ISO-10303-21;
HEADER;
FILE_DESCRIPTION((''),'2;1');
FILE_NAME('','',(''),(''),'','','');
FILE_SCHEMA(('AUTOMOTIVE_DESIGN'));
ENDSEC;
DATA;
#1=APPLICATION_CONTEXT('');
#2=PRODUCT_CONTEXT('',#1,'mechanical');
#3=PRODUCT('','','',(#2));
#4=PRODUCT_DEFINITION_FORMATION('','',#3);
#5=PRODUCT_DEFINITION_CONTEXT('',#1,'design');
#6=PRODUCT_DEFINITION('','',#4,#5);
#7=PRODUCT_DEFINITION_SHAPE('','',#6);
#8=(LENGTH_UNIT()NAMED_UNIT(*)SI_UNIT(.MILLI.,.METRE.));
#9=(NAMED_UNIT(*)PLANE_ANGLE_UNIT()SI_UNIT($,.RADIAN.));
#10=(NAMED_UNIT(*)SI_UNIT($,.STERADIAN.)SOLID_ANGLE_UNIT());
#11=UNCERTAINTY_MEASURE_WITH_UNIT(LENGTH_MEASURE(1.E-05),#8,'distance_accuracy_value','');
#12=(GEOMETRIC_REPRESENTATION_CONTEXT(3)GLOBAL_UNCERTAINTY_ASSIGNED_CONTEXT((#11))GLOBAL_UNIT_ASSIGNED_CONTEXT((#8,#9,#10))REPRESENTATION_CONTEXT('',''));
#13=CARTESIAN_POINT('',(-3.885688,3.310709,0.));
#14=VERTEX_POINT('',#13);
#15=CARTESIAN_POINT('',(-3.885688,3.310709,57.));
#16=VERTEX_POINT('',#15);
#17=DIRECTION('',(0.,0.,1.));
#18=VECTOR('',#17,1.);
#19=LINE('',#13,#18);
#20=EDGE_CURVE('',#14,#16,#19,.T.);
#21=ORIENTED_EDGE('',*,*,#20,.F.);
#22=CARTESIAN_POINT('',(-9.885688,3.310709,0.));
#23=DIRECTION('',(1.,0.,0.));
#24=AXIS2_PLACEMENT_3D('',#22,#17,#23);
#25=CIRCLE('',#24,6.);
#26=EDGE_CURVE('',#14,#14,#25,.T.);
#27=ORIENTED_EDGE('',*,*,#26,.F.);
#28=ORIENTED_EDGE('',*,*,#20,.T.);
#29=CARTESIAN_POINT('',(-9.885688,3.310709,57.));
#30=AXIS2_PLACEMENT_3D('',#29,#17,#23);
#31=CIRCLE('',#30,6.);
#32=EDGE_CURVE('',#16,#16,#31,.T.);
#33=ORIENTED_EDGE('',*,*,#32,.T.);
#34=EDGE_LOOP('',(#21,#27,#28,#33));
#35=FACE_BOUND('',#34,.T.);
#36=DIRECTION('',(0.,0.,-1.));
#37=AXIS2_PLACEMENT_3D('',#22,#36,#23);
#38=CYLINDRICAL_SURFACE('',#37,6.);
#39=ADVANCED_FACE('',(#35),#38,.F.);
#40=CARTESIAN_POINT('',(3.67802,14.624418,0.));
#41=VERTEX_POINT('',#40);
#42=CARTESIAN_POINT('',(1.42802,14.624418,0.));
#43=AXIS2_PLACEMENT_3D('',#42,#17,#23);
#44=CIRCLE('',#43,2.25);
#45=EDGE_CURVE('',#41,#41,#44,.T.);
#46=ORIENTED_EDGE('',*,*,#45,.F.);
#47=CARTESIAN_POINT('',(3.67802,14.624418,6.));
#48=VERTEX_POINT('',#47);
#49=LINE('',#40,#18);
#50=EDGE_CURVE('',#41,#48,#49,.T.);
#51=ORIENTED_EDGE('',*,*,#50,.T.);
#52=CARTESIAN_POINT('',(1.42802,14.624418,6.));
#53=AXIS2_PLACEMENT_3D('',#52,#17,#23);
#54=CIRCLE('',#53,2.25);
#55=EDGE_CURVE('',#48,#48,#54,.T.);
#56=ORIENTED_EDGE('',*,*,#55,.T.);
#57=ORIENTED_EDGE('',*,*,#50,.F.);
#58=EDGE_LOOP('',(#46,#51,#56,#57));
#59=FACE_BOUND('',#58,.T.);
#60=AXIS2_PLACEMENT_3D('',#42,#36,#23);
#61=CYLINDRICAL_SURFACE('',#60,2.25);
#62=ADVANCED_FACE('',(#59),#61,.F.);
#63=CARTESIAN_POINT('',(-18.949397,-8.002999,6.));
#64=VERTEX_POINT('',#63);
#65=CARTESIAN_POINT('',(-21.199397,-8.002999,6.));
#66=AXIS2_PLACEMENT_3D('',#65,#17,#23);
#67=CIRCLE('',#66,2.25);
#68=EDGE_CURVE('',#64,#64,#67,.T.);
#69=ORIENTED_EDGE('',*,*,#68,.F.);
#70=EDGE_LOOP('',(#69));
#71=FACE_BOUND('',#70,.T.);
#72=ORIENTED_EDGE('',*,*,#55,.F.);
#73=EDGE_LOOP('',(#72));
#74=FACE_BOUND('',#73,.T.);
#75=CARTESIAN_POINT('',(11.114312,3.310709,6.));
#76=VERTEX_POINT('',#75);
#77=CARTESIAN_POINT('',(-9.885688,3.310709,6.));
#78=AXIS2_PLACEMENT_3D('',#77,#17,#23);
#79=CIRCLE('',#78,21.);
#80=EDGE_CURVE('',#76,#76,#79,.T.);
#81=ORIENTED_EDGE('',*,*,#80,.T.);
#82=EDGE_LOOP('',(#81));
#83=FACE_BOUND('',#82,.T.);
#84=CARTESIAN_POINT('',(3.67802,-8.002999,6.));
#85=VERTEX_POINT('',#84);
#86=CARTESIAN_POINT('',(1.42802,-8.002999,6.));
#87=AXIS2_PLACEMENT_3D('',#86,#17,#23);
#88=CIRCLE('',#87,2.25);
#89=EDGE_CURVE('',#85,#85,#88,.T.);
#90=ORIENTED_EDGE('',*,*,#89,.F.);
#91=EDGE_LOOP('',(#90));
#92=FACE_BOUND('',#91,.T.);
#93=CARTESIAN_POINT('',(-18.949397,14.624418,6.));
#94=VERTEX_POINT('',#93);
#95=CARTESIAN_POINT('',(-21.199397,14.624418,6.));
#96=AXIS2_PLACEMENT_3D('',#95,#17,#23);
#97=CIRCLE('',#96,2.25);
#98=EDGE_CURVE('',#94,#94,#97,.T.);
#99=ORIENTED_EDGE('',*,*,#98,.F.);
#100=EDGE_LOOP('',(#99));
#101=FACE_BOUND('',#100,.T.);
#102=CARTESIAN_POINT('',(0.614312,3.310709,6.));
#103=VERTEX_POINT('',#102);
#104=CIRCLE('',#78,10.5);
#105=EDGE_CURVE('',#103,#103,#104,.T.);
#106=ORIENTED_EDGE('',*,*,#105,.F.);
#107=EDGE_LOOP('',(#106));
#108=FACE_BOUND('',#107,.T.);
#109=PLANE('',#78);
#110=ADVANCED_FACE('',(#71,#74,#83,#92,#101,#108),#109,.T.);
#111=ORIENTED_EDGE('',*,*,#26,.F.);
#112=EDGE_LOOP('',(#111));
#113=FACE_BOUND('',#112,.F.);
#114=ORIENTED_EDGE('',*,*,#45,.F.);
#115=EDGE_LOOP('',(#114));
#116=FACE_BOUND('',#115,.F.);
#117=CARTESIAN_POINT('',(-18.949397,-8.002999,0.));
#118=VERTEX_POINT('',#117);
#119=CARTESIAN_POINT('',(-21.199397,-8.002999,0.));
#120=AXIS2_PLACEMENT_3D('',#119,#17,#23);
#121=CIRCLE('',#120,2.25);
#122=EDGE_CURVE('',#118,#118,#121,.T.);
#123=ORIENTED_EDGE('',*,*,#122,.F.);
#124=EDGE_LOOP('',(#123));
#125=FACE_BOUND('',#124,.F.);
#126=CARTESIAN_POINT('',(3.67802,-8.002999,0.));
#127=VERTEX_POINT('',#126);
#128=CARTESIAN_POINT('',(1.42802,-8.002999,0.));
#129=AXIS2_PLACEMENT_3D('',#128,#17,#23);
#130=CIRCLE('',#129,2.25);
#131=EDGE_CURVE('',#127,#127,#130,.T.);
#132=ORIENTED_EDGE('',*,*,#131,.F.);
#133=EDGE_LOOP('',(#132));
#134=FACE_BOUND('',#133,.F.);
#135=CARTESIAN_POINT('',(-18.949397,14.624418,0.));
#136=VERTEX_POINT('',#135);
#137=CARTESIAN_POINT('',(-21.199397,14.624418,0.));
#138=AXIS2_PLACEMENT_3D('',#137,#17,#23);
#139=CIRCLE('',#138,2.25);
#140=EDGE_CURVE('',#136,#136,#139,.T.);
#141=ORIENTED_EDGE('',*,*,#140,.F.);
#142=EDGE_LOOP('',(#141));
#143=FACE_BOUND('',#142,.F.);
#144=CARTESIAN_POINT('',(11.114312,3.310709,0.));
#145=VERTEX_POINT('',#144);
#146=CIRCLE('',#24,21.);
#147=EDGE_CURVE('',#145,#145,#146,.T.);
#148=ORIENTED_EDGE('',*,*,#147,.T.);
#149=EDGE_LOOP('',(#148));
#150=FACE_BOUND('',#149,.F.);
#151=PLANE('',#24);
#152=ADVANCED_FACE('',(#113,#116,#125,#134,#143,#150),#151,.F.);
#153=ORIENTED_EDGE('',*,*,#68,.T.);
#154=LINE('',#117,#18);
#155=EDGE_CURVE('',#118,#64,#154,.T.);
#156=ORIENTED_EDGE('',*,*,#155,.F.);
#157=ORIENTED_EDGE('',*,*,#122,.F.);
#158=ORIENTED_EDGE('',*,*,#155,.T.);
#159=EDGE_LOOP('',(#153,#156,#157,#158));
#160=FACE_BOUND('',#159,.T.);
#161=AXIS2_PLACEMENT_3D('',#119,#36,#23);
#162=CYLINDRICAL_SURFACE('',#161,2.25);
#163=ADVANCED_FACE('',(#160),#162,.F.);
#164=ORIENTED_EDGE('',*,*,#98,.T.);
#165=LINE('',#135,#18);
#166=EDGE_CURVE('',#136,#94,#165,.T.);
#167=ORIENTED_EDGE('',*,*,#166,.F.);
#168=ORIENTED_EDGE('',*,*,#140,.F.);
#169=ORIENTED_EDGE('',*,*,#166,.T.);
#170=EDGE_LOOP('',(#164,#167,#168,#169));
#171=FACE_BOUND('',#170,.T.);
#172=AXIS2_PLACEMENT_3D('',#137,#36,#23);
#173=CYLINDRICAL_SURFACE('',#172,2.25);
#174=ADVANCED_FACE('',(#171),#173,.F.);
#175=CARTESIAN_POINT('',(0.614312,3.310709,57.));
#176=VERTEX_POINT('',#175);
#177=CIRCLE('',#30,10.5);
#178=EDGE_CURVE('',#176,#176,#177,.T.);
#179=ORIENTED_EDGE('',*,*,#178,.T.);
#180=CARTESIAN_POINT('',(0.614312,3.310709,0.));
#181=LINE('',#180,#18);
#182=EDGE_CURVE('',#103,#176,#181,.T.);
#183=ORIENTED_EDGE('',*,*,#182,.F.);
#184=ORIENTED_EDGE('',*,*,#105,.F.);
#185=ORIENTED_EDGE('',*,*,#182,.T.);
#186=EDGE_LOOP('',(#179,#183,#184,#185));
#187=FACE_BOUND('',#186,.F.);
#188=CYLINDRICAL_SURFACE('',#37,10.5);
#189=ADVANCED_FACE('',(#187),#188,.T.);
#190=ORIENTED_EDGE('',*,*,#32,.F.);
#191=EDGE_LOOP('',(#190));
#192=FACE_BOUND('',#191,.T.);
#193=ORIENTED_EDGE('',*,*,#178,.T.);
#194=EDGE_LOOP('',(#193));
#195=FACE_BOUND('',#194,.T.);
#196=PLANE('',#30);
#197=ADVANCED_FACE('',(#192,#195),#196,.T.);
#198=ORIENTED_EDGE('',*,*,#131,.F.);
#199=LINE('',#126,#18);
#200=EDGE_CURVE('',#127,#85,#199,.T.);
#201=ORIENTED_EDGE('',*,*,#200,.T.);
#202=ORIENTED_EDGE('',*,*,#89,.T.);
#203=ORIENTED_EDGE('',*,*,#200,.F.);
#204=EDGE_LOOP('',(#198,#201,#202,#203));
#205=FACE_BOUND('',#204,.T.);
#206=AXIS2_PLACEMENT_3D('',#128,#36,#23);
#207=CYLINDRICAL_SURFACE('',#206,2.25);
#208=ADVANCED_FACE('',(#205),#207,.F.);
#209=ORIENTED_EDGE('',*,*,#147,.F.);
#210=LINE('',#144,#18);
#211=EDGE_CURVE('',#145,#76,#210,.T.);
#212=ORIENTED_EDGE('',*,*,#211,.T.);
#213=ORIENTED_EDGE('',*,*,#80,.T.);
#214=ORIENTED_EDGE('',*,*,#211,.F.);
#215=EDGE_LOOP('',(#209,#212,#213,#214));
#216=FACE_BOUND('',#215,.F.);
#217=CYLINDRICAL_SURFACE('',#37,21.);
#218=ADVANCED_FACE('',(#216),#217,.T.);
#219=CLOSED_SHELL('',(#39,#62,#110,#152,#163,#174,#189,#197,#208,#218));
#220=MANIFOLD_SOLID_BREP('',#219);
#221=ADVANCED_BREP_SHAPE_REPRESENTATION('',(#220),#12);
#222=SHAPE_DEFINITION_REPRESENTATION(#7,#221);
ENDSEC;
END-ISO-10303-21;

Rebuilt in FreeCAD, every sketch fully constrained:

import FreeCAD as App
import Part
import Sketcher

V = App.Vector

doc = App.newDocument("Part")
params = doc.addObject("Spreadsheet::Sheet", "Params")
for row, (alias, value) in enumerate([
    ("sketch1_diameter", "21 mm"),
    ("sketch1_diameter2", "12 mm"),
    ("pad1_length", "57 mm"),
    ("sketch2_diameter", "42 mm"),
    ("sketch2_diameter2", "21 mm"),
    ("sketch2_diameter3", "4.5 mm"),
    ("pad2_length", "6 mm"),
], start=1):
    params.set(f"A{row}", alias)
    params.set(f"B{row}", "=" + value)
    params.setAlias(f"B{row}", alias)

body = doc.addObject("PartDesign::Body", "Body")

# Sketch on XY plane
sketch1 = body.newObject("Sketcher::SketchObject", "Sketch")
sketch1.AttachmentSupport = (doc.getObject("XY_Plane"), [""])
sketch1.MapMode = "FlatFace"
sketch1.addGeometry([
    Part.Circle(V(-10, 3, 0), V(0, 0, 1), 10),
    Part.Circle(V(-10, 3, 0), V(0, 0, 1), 6),
], False)
sketch1.addConstraint([
    Sketcher.Constraint("Coincident", 1, 3, 0, 3),
    Sketcher.Constraint("Diameter", 0, 21.0),
    Sketcher.Constraint("Diameter", 1, 12.0),
    Sketcher.Constraint("DistanceY", -1, 1, 0, 3, 3.310709),
    Sketcher.Constraint("DistanceX", 0, 3, -1, 1, 9.885688),
])
sketch1.setExpression("Constraints[1]", "Params.sketch1_diameter")
sketch1.setExpression("Constraints[2]", "Params.sketch1_diameter2")
pad1 = body.newObject("PartDesign::Pad", "Pad")
pad1.Profile = sketch1
pad1.setExpression("Length", "Params.pad1_length")

# Sketch on XY plane
sketch2 = body.newObject("Sketcher::SketchObject", "Sketch001")
sketch2.AttachmentSupport = (doc.getObject("XY_Plane"), [""])
sketch2.MapMode = "FlatFace"
sketch2.addGeometry([
    Part.Circle(V(-9.9, 3.3, 0), V(0, 0, 1), 21),  # 0
    Part.Circle(V(-21.2, -8, 0), V(0, 0, 1), 2.2),  # 1
    Part.Circle(V(1.4, -8, 0), V(0, 0, 1), 2.2),  # 2
    Part.Circle(V(-9.9, 3.3, 0), V(0, 0, 1), 10.5),  # 3
    Part.Circle(V(-21.2, 14.6, 0), V(0, 0, 1), 2.2),  # 4
    Part.Circle(V(1.4, 14.6, 0), V(0, 0, 1), 2.2),  # 5
], False)
sketch2.addConstraint([
    Sketcher.Constraint("Coincident", 3, 3, 0, 3),
    Sketcher.Constraint("Equal", 1, 2),
    Sketcher.Constraint("Equal", 2, 4),
    Sketcher.Constraint("Equal", 4, 5),
    Sketcher.Constraint("Horizontal", 1, 3, 2, 3),
    Sketcher.Constraint("Horizontal", 4, 3, 5, 3),
    Sketcher.Constraint("Vertical", 1, 3, 4, 3),
    Sketcher.Constraint("Vertical", 2, 3, 5, 3),
    Sketcher.Constraint("Diameter", 0, 42.0),
    Sketcher.Constraint("Diameter", 3, 21.0),
    Sketcher.Constraint("Diameter", 1, 4.5),
    Sketcher.Constraint("DistanceY", 1, 3, -1, 1, 8.002999),
    Sketcher.Constraint("DistanceY", -1, 1, 0, 3, 3.310709),
    Sketcher.Constraint("DistanceX", -1, 1, 2, 3, 1.42802),
    Sketcher.Constraint("DistanceX", 1, 3, 0, 3, 11.313709),
    Sketcher.Constraint("DistanceY", 0, 3, 4, 3, 11.313709),
    Sketcher.Constraint("DistanceX", 0, 3, -1, 1, 9.885688),
])
sketch2.setExpression("Constraints[8]", "Params.sketch2_diameter")
sketch2.setExpression("Constraints[9]", "Params.sketch2_diameter2")
sketch2.setExpression("Constraints[10]", "Params.sketch2_diameter3")
pad2 = body.newObject("PartDesign::Pad", "Pad001")
pad2.Profile = sketch2
pad2.setExpression("Length", "Params.pad2_length")

doc.recompute()
